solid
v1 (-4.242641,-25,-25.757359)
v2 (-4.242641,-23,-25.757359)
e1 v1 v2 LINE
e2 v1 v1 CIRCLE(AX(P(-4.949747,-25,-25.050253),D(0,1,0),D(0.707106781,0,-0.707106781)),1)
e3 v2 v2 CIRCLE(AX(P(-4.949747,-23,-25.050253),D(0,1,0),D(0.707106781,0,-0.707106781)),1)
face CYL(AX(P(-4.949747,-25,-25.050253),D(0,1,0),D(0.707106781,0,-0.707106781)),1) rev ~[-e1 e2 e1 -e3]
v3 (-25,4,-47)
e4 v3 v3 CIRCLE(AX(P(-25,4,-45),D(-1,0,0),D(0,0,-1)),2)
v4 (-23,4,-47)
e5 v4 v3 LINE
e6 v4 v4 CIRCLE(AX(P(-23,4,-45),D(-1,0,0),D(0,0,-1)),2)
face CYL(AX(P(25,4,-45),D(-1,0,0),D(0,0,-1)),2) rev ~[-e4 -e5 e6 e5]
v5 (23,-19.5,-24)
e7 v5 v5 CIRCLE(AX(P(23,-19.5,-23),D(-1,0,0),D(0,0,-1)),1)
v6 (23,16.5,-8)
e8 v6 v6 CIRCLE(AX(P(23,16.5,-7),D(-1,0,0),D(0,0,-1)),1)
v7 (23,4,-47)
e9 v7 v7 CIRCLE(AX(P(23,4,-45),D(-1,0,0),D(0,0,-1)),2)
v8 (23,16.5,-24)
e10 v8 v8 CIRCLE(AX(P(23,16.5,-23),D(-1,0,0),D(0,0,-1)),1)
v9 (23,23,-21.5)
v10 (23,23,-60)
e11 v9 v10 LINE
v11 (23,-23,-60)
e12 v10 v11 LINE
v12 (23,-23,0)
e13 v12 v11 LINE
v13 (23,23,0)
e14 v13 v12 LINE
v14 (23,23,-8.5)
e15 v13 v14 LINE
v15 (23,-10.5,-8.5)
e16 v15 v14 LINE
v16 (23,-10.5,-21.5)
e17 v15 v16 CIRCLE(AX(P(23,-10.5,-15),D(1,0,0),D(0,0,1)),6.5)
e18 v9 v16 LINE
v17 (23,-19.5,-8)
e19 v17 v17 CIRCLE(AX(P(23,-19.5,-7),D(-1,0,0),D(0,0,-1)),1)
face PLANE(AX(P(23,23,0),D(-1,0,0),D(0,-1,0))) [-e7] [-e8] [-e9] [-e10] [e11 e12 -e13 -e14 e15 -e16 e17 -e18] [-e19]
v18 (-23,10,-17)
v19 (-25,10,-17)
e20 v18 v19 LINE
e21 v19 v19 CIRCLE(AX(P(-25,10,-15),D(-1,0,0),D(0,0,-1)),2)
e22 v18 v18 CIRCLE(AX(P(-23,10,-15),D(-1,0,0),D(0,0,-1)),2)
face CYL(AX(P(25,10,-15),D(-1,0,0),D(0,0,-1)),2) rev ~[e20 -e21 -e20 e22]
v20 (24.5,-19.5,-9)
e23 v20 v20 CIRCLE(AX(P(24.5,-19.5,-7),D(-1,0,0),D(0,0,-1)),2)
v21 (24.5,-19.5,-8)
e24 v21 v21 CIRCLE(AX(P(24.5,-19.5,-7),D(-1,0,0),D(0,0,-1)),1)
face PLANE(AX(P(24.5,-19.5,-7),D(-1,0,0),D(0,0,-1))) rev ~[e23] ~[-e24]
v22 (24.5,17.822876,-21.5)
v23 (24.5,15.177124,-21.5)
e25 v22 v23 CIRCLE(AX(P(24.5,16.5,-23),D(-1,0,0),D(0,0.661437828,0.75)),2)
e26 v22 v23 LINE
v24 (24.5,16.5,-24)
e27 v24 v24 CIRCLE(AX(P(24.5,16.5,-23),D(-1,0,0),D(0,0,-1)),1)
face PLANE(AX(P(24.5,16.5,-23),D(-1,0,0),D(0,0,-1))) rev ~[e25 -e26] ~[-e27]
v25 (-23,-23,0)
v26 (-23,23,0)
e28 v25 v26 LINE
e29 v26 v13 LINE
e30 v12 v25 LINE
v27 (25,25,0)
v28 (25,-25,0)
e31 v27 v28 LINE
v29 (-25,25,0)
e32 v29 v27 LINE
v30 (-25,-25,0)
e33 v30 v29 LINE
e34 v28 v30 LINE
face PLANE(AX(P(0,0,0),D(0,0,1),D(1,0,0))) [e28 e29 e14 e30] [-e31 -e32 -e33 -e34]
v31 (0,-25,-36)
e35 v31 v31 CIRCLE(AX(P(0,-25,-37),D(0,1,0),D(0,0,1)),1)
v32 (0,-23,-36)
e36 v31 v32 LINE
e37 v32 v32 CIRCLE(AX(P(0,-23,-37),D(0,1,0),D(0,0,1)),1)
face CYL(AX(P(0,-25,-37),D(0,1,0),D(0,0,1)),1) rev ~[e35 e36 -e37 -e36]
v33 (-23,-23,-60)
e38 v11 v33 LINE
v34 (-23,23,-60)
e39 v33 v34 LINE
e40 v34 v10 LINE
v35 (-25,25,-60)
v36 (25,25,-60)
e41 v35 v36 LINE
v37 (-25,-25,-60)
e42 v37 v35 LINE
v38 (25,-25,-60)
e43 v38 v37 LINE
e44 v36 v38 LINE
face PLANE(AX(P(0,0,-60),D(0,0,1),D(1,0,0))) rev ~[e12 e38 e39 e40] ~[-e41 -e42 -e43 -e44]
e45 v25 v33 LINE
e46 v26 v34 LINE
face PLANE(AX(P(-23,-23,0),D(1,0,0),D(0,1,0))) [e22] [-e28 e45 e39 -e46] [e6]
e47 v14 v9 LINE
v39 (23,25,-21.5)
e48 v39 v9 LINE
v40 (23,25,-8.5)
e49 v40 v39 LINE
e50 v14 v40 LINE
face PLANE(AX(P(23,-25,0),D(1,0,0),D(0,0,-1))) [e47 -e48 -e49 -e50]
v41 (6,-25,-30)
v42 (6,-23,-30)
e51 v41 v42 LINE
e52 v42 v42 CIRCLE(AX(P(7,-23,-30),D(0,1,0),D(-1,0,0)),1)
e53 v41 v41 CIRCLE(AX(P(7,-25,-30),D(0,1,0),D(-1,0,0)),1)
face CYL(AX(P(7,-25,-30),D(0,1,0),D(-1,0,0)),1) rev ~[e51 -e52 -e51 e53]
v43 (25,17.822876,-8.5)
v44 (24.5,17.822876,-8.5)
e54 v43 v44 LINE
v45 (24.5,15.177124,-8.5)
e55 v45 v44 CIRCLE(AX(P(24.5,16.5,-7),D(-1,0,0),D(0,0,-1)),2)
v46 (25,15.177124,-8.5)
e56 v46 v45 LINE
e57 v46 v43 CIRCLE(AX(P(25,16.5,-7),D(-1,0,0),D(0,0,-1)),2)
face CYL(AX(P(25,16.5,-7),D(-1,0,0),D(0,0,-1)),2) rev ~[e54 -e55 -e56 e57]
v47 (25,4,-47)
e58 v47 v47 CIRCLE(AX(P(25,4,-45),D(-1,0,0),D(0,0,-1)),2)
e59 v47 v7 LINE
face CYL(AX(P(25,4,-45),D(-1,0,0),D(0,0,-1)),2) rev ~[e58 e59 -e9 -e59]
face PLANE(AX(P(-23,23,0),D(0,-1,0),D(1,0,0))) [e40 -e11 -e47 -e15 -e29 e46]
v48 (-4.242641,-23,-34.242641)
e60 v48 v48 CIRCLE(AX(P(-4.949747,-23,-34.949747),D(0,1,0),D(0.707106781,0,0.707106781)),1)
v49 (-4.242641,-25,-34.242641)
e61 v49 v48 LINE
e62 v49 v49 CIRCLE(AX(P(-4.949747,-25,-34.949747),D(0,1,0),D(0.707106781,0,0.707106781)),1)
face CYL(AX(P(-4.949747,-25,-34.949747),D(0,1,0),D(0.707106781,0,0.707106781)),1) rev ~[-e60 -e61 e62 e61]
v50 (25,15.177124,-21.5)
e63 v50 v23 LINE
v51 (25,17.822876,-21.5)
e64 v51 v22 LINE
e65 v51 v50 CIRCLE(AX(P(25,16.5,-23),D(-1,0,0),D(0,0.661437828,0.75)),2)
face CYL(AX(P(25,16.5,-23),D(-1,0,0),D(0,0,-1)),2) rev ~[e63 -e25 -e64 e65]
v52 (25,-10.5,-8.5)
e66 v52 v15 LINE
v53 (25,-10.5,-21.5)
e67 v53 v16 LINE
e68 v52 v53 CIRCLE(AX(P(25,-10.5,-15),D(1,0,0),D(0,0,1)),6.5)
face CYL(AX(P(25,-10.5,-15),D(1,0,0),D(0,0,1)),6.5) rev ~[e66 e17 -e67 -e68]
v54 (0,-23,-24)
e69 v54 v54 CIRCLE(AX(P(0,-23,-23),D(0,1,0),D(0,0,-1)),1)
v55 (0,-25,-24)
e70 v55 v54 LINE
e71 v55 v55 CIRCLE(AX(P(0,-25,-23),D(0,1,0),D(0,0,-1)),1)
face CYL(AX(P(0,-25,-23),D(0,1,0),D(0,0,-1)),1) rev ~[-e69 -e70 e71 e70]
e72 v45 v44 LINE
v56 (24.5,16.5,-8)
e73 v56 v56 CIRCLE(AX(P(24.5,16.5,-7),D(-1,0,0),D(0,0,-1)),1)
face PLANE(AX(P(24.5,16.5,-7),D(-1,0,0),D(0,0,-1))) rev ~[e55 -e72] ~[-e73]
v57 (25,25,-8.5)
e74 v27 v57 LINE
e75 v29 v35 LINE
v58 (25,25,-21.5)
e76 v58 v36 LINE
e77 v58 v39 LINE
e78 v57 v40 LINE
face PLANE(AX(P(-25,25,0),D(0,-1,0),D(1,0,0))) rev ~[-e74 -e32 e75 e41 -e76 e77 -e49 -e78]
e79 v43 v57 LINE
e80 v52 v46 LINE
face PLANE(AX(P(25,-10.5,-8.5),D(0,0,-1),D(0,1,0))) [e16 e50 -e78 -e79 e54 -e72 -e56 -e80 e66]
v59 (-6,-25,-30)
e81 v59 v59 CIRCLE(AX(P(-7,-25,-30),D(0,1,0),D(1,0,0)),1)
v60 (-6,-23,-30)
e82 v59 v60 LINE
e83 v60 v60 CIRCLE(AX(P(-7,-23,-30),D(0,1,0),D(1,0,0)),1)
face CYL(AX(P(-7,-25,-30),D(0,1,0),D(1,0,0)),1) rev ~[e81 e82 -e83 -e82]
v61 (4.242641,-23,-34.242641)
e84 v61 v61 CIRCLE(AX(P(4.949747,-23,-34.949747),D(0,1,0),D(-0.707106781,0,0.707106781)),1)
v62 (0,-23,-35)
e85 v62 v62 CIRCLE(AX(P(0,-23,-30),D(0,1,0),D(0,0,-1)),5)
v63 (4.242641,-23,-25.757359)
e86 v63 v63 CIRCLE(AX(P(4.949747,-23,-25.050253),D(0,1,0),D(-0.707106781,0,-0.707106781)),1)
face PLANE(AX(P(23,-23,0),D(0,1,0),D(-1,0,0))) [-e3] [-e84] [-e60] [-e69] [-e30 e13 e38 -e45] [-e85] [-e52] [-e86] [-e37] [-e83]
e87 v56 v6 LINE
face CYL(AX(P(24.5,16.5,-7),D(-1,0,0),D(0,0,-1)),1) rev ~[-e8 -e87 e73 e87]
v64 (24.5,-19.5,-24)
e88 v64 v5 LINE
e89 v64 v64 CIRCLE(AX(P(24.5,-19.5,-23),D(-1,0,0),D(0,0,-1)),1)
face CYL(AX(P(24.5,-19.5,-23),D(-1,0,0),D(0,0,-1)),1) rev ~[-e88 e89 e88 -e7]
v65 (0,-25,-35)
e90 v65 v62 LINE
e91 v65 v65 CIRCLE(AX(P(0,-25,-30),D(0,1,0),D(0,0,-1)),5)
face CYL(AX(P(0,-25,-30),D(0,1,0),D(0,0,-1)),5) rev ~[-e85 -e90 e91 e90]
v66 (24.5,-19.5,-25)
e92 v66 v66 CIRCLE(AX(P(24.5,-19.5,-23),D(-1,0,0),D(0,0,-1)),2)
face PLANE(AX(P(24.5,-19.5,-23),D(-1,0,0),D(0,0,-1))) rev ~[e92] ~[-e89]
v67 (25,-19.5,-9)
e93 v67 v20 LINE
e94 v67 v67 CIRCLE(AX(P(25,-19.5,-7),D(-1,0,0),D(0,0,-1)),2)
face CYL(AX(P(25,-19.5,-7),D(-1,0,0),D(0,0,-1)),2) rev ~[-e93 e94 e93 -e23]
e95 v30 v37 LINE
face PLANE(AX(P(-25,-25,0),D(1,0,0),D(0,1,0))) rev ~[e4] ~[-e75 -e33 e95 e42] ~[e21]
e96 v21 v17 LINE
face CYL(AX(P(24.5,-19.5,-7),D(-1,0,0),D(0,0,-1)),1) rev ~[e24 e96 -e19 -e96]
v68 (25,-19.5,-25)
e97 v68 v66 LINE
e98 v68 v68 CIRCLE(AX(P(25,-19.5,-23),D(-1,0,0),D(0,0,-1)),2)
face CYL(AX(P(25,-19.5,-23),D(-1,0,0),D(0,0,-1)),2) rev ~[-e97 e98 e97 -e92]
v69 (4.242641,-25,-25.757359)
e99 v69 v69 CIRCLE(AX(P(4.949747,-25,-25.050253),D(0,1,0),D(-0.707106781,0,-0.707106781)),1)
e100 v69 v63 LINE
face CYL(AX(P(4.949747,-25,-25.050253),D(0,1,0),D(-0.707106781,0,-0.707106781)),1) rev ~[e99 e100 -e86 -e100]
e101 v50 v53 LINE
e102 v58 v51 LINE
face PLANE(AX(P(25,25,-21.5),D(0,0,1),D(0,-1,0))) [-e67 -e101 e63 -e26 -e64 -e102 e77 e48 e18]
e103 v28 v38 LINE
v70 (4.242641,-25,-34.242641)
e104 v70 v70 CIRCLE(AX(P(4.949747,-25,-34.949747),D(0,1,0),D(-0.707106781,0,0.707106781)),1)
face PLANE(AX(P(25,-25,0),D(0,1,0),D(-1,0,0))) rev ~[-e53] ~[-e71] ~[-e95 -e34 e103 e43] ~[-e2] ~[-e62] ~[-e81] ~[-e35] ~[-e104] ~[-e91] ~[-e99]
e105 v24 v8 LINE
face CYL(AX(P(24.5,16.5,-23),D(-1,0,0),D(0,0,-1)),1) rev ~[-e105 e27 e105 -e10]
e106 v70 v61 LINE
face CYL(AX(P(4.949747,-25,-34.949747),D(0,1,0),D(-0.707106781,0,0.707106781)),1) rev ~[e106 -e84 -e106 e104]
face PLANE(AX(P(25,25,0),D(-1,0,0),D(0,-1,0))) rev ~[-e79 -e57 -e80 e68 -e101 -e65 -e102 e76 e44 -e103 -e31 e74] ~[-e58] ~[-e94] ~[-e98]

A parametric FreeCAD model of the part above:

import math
import FreeCAD as App
import Part
import Sketcher

V = App.Vector

doc = App.newDocument("Part")
body = doc.addObject("PartDesign::Body", "Body")

# Sketch on XY plane
sketch1 = body.newObject("Sketcher::SketchObject", "Sketch")
sketch1.AttachmentSupport = (doc.getObject("XY_Plane"), [""])
sketch1.MapMode = "FlatFace"
sketch1.addGeometry(Part.LineSegment(V(25, 25, 0), V(-25, 25, 0)), False)
sketch1.addGeometry(Part.LineSegment(V(-25, 25, 0), V(-25, -25, 0)), False)
sketch1.addGeometry(Part.LineSegment(V(-25, -25, 0), V(25, -25, 0)), False)
sketch1.addGeometry(Part.LineSegment(V(25, -25, 0), V(25, 25, 0)), False)
sketch1.addGeometry(Part.LineSegment(V(-23, -23, 0), V(-23, 23, 0)), False)
sketch1.addGeometry(Part.LineSegment(V(-23, 23, 0), V(23, 23, 0)), False)
sketch1.addGeometry(Part.LineSegment(V(23, 23, 0), V(23, -23, 0)), False)
sketch1.addGeometry(Part.LineSegment(V(23, -23, 0), V(-23, -23, 0)), False)
sketch1.addConstraint(Sketcher.Constraint("Coincident", 0, 2, 1, 1))
sketch1.addConstraint(Sketcher.Constraint("Coincident", 1, 2, 2, 1))
sketch1.addConstraint(Sketcher.Constraint("Coincident", 2, 2, 3, 1))
sketch1.addConstraint(Sketcher.Constraint("Coincident", 3, 2, 0, 1))
sketch1.addConstraint(Sketcher.Constraint("Coincident", 4, 2, 5, 1))
sketch1.addConstraint(Sketcher.Constraint("Coincident", 5, 2, 6, 1))
sketch1.addConstraint(Sketcher.Constraint("Coincident", 6, 2, 7, 1))
sketch1.addConstraint(Sketcher.Constraint("Coincident", 7, 2, 4, 1))
sketch1.addConstraint(Sketcher.Constraint("Horizontal", 0))
sketch1.addConstraint(Sketcher.Constraint("Vertical", 1))
sketch1.addConstraint(Sketcher.Constraint("Horizontal", 2))
sketch1.addConstraint(Sketcher.Constraint("Vertical", 3))
sketch1.addConstraint(Sketcher.Constraint("Vertical", 4))
sketch1.addConstraint(Sketcher.Constraint("Horizontal", 5))
sketch1.addConstraint(Sketcher.Constraint("Vertical", 6))
sketch1.addConstraint(Sketcher.Constraint("Horizontal", 7))
sketch1.addConstraint(Sketcher.Constraint("Symmetric", 0, 2, 2, 2, -1, 1))
sketch1.addConstraint(Sketcher.Constraint("Symmetric", 4, 2, 6, 2, -1, 1))
sketch1.addConstraint(Sketcher.Constraint("Equal", 2, 1))
sketch1.addConstraint(Sketcher.Constraint("Equal", 7, 4))
sketch1.addConstraint(Sketcher.Constraint("DistanceX", 0, 2, 0, 1, 50.0))
sketch1.addConstraint(Sketcher.Constraint("DistanceX", 5, 1, 5, 2, 46.0))
pad1 = body.newObject("PartDesign::Pad", "Pad")
pad1.Profile = sketch1
pad1.Length = 60
pad1.Reversed = True

# Sketch on YZ plane
sketch2 = body.newObject("Sketcher::SketchObject", "Sketch001")
sketch2.AttachmentSupport = (doc.getObject("YZ_Plane"), [""])
sketch2.MapMode = "FlatFace"
sketch2.AttachmentOffset = App.Placement(V(0, 0, 25), App.Rotation())
sketch2.addGeometry(Part.Circle(V(10, -15, 0), V(0, 0, 1), 2), False)
sketch2.addGeometry(Part.Circle(V(4, -45, 0), V(0, 0, 1), 2), False)
sketch2.addConstraint(Sketcher.Constraint("Equal", 0, 1))
sketch2.addConstraint(Sketcher.Constraint("Diameter", 0, 4.0))
sketch2.addConstraint(Sketcher.Constraint("DistanceX", -1, 1, 0, 3, 10.0))
sketch2.addConstraint(Sketcher.Constraint("DistanceY", 0, 3, -1, 1, 15.0))
sketch2.addConstraint(Sketcher.Constraint("DistanceX", -1, 1, 1, 3, 4.0))
sketch2.addConstraint(Sketcher.Constraint("DistanceY", 1, 3, -1, 1, 45.0))
doc.recompute()
hole = body.newObject("PartDesign::Hole", "Hole")
hole.Profile = sketch2
hole.ThreadType = "None"
hole.Diameter = 4
hole.DepthType = "ThroughAll"

# Sketch on YZ plane
sketch3 = body.newObject("Sketcher::SketchObject", "Sketch002")
sketch3.AttachmentSupport = (doc.getObject("YZ_Plane"), [""])
sketch3.MapMode = "FlatFace"
sketch3.AttachmentOffset = App.Placement(V(0, 0, 25), App.Rotation())
sketch3.addGeometry(Part.LineSegment(V(25, -21.5, 0), V(25, -8.5, 0)), False)
sketch3.addGeometry(Part.LineSegment(V(25, -8.5, 0), V(-10.5, -8.5, 0)), False)
sketch3.addGeometry(Part.ArcOfCircle(Part.Circle(V(-10.5, -15, 0), V(0, 0, 1), 6.5), math.radians(90), math.radians(270)), False)
sketch3.addGeometry(Part.LineSegment(V(-10.5, -21.5, 0), V(25, -21.5, 0)), False)
sketch3.addGeometry(Part.Circle(V(10, -15, 0), V(0, 0, 1), 2), False)
sketch3.addConstraint(Sketcher.Constraint("Coincident", 0, 2, 1, 1))
sketch3.addConstraint(Sketcher.Constraint("Tangent", 1, 2, 2, 1))
sketch3.addConstraint(Sketcher.Constraint("Tangent", 2, 2, 3, 1))
sketch3.addConstraint(Sketcher.Constraint("Coincident", 3, 2, 0, 1))
sketch3.addConstraint(Sketcher.Constraint("Vertical", 0))
sketch3.addConstraint(Sketcher.Constraint("Horizontal", 1))
sketch3.addConstraint(Sketcher.Constraint("Horizontal", 3))
sketch3.addConstraint(Sketcher.Constraint("Horizontal", 2, 3, 4, 3))
sketch3.addConstraint(Sketcher.Constraint("Radius", 2, 6.5))
sketch3.addConstraint(Sketcher.Constraint("Diameter", 4, 4.0))
sketch3.addConstraint(Sketcher.Constraint("DistanceX", 1, 2, 1, 1, 35.5))
sketch3.addConstraint(Sketcher.Constraint("DistanceY", 2, 3, -1, 1, 15.0))
sketch3.addConstraint(Sketcher.Constraint("DistanceX", -1, 1, 4, 3, 10.0))
sketch3.addConstraint(Sketcher.Constraint("DistanceX", -1, 1, 0, 2, 25.0))
pocket1 = body.newObject("PartDesign::Pocket", "Pocket")
pocket1.Profile = sketch3
pocket1.Length = 2

# Sketch on YZ plane
sketch4 = body.newObject("Sketcher::SketchObject", "Sketch003")
sketch4.AttachmentSupport = (doc.getObject("YZ_Plane"), [""])
sketch4.MapMode = "FlatFace"
sketch4.AttachmentOffset = App.Placement(V(0, 0, 25), App.Rotation())
sketch4.addGeometry(Part.Circle(V(16.5, -7, 0), V(0, 0, 1), 1), False)
sketch4.addGeometry(Part.Circle(V(16.5, -23, 0), V(0, 0, 1), 1), False)
sketch4.addGeometry(Part.Circle(V(-19.5, -7, 0), V(0, 0, 1), 1), False)
sketch4.addGeometry(Part.Circle(V(-19.5, -23, 0), V(0, 0, 1), 1), False)
sketch4.addConstraint(Sketcher.Constraint("Equal", 0, 1))
sketch4.addConstraint(Sketcher.Constraint("Equal", 1, 2))
sketch4.addConstraint(Sketcher.Constraint("Equal", 2, 3))
sketch4.addConstraint(Sketcher.Constraint("Horizontal", 0, 3, 2, 3))
sketch4.addConstraint(Sketcher.Constraint("Horizontal", 1, 3, 3, 3))
sketch4.addConstraint(Sketcher.Constraint("Vertical", 0, 3, 1, 3))
sketch4.addConstraint(Sketcher.Constraint("Vertical", 2, 3, 3, 3))
sketch4.addConstraint(Sketcher.Constraint("Diameter", 0, 2.0))
sketch4.addConstraint(Sketcher.Constraint("DistanceY", 0, 3, -1, 1, 7.0))
sketch4.addConstraint(Sketcher.Constraint("DistanceY", 1, 3, -1, 1, 23.0))
sketch4.addConstraint(Sketcher.Constraint("DistanceX", 2, 3, 0, 3, 36.0))
sketch4.addConstraint(Sketcher.Constraint("DistanceX", -1, 1, 0, 3, 16.5))
doc.recompute()
hole2 = body.newObject("PartDesign::Hole", "Hole001")
hole2.Profile = sketch4
hole2.ThreadType = "None"
hole2.Diameter = 2
hole2.DepthType = "Dimension"
hole2.Depth = 2
hole2.DrillPoint = "Angled"
hole2.DrillPointAngle = 118
hole2.HoleCutType = "Counterbore"
hole2.HoleCutDiameter = 4
hole2.HoleCutDepth = 0.5

# Sketch on XZ plane
sketch5 = body.newObject("Sketcher::SketchObject", "Sketch004")
sketch5.AttachmentSupport = (doc.getObject("XZ_Plane"), [""])
sketch5.MapMode = "FlatFace"
sketch5.AttachmentOffset = App.Placement(V(0, 0, 25), App.Rotation())
sketch5.addGeometry(Part.Circle(V(0, -30, 0), V(0, 0, 1), 5), False)
sketch5.addConstraint(Sketcher.Constraint("PointOnObject", 0, 3, -2))
sketch5.addConstraint(Sketcher.Constraint("Diameter", 0, 10.0))
sketch5.addConstraint(Sketcher.Constraint("DistanceY", 0, 3, -1, 1, 30.0))
doc.recompute()
hole3 = body.newObject("PartDesign::Hole", "Hole002")
hole3.Profile = sketch5
hole3.ThreadType = "None"
hole3.Diameter = 10
hole3.DepthType = "Dimension"
hole3.Depth = 2
hole3.DrillPoint = "Angled"
hole3.DrillPointAngle = 118

# Sketch on XZ plane
sketch6 = body.newObject("Sketcher::SketchObject", "Sketch005")
sketch6.AttachmentSupport = (doc.getObject("XZ_Plane"), [""])
sketch6.MapMode = "FlatFace"
sketch6.AttachmentOffset = App.Placement(V(0, 0, 25), App.Rotation())
sketch6.addGeometry(Part.Circle(V(0, -23, 0), V(0, 0, 1), 1), False)
sketch6.addConstraint(Sketcher.Constraint("PointOnObject", 0, 3, -2))
sketch6.addConstraint(Sketcher.Constraint("Diameter", 0, 2.0))
sketch6.addConstraint(Sketcher.Constraint("DistanceY", 0, 3, -1, 1, 23.0))
doc.recompute()
hole4 = body.newObject("PartDesign::Hole", "Hole003")
hole4.Profile = sketch6
hole4.ThreadType = "None"
hole4.Diameter = 2
hole4.DepthType = "Dimension"
hole4.Depth = 2
hole4.DrillPoint = "Angled"
hole4.DrillPointAngle = 118
doc.recompute()

datumline = body.newObject("PartDesign::Line", "DatumLine")
datumline.Placement = App.Placement(V(0, 0, -30), App.Rotation(V(0, 0, 1), V(0, 1, 0)))
polarpattern = body.newObject("PartDesign::PolarPattern", "PolarPattern")
polarpattern.Originals = [hole4]
polarpattern.Axis = (datumline, [""])
polarpattern.Angle = 360
polarpattern.Occurrences = 8
body.Tip = polarpattern

doc.recompute()
